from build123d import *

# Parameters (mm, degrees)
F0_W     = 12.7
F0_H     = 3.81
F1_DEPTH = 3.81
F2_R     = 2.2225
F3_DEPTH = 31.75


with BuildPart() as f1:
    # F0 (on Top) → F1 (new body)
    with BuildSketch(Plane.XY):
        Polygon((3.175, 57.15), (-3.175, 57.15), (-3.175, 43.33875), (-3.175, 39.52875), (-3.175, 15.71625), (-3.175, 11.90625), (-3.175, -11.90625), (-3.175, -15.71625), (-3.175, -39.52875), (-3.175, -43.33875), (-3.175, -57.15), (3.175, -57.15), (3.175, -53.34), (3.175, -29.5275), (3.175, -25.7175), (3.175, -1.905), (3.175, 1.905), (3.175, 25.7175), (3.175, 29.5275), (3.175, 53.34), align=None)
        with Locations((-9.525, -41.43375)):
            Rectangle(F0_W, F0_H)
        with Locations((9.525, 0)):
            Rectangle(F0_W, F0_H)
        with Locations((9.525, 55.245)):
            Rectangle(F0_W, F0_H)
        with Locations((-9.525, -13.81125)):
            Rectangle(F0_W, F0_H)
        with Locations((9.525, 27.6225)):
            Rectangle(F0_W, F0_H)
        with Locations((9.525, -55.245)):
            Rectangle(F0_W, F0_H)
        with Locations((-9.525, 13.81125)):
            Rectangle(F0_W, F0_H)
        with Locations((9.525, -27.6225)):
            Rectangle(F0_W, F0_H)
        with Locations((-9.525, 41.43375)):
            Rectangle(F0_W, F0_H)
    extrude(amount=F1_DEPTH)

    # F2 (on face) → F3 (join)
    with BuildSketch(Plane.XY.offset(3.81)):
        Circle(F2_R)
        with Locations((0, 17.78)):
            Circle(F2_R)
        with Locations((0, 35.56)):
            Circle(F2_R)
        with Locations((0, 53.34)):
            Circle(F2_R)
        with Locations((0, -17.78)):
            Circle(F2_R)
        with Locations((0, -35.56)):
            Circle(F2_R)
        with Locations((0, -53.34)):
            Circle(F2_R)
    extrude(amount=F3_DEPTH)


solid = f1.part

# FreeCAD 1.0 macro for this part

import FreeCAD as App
import Part
import Sketcher

V = App.Vector
Q = App.Units.Quantity

doc = App.newDocument("Part")
body = doc.addObject("PartDesign::Body", "Body")

sketch1 = body.newObject("Sketcher::SketchObject", "Sketch")
sketch1.AttachmentSupport = (doc.getObject("XY_Plane"), [""])
sketch1.MapMode = "FlatFace"
sketch1.addGeometry(Part.LineSegment(V(-3.175, 57.15, 0), V(-3.175, 43.33875, 0)), False)
sketch1.addGeometry(Part.LineSegment(V(-3.175, 43.33875, 0), V(-15.875, 43.33875, 0)), False)
sketch1.addGeometry(Part.LineSegment(V(-15.875, 43.33875, 0), V(-15.875, 39.52875, 0)), False)
sketch1.addGeometry(Part.LineSegment(V(-15.875, 39.52875, 0), V(-3.175, 39.52875, 0)), False)
sketch1.addGeometry(Part.LineSegment(V(-3.175, 39.52875, 0), V(-3.175, 15.71625, 0)), False)
sketch1.addGeometry(Part.LineSegment(V(-3.175, 15.71625, 0), V(-15.875, 15.71625, 0)), False)
sketch1.addGeometry(Part.LineSegment(V(-15.875, 15.71625, 0), V(-15.875, 11.90625, 0)), False)
sketch1.addGeometry(Part.LineSegment(V(-15.875, 11.90625, 0), V(-3.175, 11.90625, 0)), False)
sketch1.addGeometry(Part.LineSegment(V(-3.175, 11.90625, 0), V(-3.175, -11.90625, 0)), False)
sketch1.addGeometry(Part.LineSegment(V(-3.175, -11.90625, 0), V(-15.875, -11.90625, 0)), False)
sketch1.addGeometry(Part.LineSegment(V(-15.875, -11.90625, 0), V(-15.875, -15.71625, 0)), False)
sketch1.addGeometry(Part.LineSegment(V(-15.875, -15.71625, 0), V(-3.175, -15.71625, 0)), False)
sketch1.addGeometry(Part.LineSegment(V(-3.175, -15.71625, 0), V(-3.175, -39.52875, 0)), False)
sketch1.addGeometry(Part.LineSegment(V(-3.175, -39.52875, 0), V(-15.875, -39.52875, 0)), False)
sketch1.addGeometry(Part.LineSegment(V(-15.875, -39.52875, 0), V(-15.875, -43.33875, 0)), False)
sketch1.addGeometry(Part.LineSegment(V(-15.875, -43.33875, 0), V(-3.175, -43.33875, 0)), False)
sketch1.addGeometry(Part.LineSegment(V(-3.175, -43.33875, 0), V(-3.175, -57.15, 0)), False)
sketch1.addGeometry(Part.LineSegment(V(-3.175, -57.15, 0), V(15.875, -57.15, 0)), False)
sketch1.addGeometry(Part.LineSegment(V(15.875, -57.15, 0), V(15.875, -53.34, 0)), False)
sketch1.addGeometry(Part.LineSegment(V(15.875, -53.34, 0), V(3.175, -53.34, 0)), False)
sketch1.addGeometry(Part.LineSegment(V(3.175, -53.34, 0), V(3.175, -29.5275, 0)), False)
sketch1.addGeometry(Part.LineSegment(V(3.175, -29.5275, 0), V(15.875, -29.5275, 0)), False)
sketch1.addGeometry(Part.LineSegment(V(15.875, -29.5275, 0), V(15.875, -25.7175, 0)), False)
sketch1.addGeometry(Part.LineSegment(V(15.875, -25.7175, 0), V(3.175, -25.7175, 0)), False)
sketch1.addGeometry(Part.LineSegment(V(3.175, -25.7175, 0), V(3.175, -1.905, 0)), False)
sketch1.addGeometry(Part.LineSegment(V(3.175, -1.905, 0), V(15.875, -1.905, 0)), False)
sketch1.addGeometry(Part.LineSegment(V(15.875, -1.905, 0), V(15.875, 1.905, 0)), False)
sketch1.addGeometry(Part.LineSegment(V(15.875, 1.905, 0), V(3.175, 1.905, 0)), False)
sketch1.addGeometry(Part.LineSegment(V(3.175, 1.905, 0), V(3.175, 25.7175, 0)), False)
sketch1.addGeometry(Part.LineSegment(V(3.175, 25.7175, 0), V(15.875, 25.7175, 0)), False)
sketch1.addGeometry(Part.LineSegment(V(15.875, 25.7175, 0), V(15.875, 29.5275, 0)), False)
sketch1.addGeometry(Part.LineSegment(V(15.875, 29.5275, 0), V(3.175, 29.5275, 0)), False)
sketch1.addGeometry(Part.LineSegment(V(3.175, 29.5275, 0), V(3.175, 53.34, 0)), False)
sketch1.addGeometry(Part.LineSegment(V(3.175, 53.34, 0), V(15.875, 53.34, 0)), False)
sketch1.addGeometry(Part.LineSegment(V(15.875, 53.34, 0), V(15.875, 57.15, 0)), False)
sketch1.addGeometry(Part.LineSegment(V(15.875, 57.15, 0), V(-3.175, 57.15, 0)), False)
sketch1.addConstraint(Sketcher.Constraint("Coincident", 0, 2, 1, 1))
sketch1.addConstraint(Sketcher.Constraint("Coincident", 1, 2, 2, 1))
sketch1.addConstraint(Sketcher.Constraint("Coincident", 2, 2, 3, 1))
sketch1.addConstraint(Sketcher.Constraint("Coincident", 3, 2, 4, 1))
sketch1.addConstraint(Sketcher.Constraint("Coincident", 4, 2, 5, 1))
sketch1.addConstraint(Sketcher.Constraint("Coincident", 5, 2, 6, 1))
sketch1.addConstraint(Sketcher.Constraint("Coincident", 6, 2, 7, 1))
sketch1.addConstraint(Sketcher.Constraint("Coincident", 7, 2, 8, 1))
sketch1.addConstraint(Sketcher.Constraint("Coincident", 8, 2, 9, 1))
sketch1.addConstraint(Sketcher.Constraint("Coincident", 9, 2, 10, 1))
sketch1.addConstraint(Sketcher.Constraint("Coincident", 10, 2, 11, 1))
sketch1.addConstraint(Sketcher.Constraint("Coincident", 11, 2, 12, 1))
sketch1.addConstraint(Sketcher.Constraint("Coincident", 12, 2, 13, 1))
sketch1.addConstraint(Sketcher.Constraint("Coincident", 13, 2, 14, 1))
sketch1.addConstraint(Sketcher.Constraint("Coincident", 14, 2, 15, 1))
sketch1.addConstraint(Sketcher.Constraint("Coincident", 15, 2, 16, 1))
sketch1.addConstraint(Sketcher.Constraint("Coincident", 16, 2, 17, 1))
sketch1.addConstraint(Sketcher.Constraint("Coincident", 17, 2, 18, 1))
sketch1.addConstraint(Sketcher.Constraint("Coincident", 18, 2, 19, 1))
sketch1.addConstraint(Sketcher.Constraint("Coincident", 19, 2, 20, 1))
sketch1.addConstraint(Sketcher.Constraint("Coincident", 20, 2, 21, 1))
sketch1.addConstraint(Sketcher.Constraint("Coincident", 21, 2, 22, 1))
sketch1.addConstraint(Sketcher.Constraint("Coincident", 22, 2, 23, 1))
sketch1.addConstraint(Sketcher.Constraint("Coincident", 23, 2, 24, 1))
sketch1.addConstraint(Sketcher.Constraint("Coincident", 24, 2, 25, 1))
sketch1.addConstraint(Sketcher.Constraint("Coincident", 25, 2, 26, 1))
sketch1.addConstraint(Sketcher.Constraint("Coincident", 26, 2, 27, 1))
sketch1.addConstraint(Sketcher.Constraint("Coincident", 27, 2, 28, 1))
sketch1.addConstraint(Sketcher.Constraint("Coincident", 28, 2, 29, 1))
sketch1.addConstraint(Sketcher.Constraint("Coincident", 29, 2, 30, 1))
sketch1.addConstraint(Sketcher.Constraint("Coincident", 30, 2, 31, 1))
sketch1.addConstraint(Sketcher.Constraint("Coincident", 31, 2, 32, 1))
sketch1.addConstraint(Sketcher.Constraint("Coincident", 32, 2, 33, 1))
sketch1.addConstraint(Sketcher.Constraint("Coincident", 33, 2, 34, 1))
sketch1.addConstraint(Sketcher.Constraint("Coincident", 34, 2, 35, 1))
sketch1.addConstraint(Sketcher.Constraint("Coincident", 35, 2, 0, 1))
sketch1.addConstraint(Sketcher.Constraint("Vertical", 0))
sketch1.addConstraint(Sketcher.Constraint("Horizontal", 1))
sketch1.addConstraint(Sketcher.Constraint("Vertical", 2))
sketch1.addConstraint(Sketcher.Constraint("Horizontal", 3))
sketch1.addConstraint(Sketcher.Constraint("Vertical", 4))
sketch1.addConstraint(Sketcher.Constraint("Horizontal", 5))
sketch1.addConstraint(Sketcher.Constraint("Vertical", 6))
sketch1.addConstraint(Sketcher.Constraint("Horizontal", 7))
sketch1.addConstraint(Sketcher.Constraint("Vertical", 8))
sketch1.addConstraint(Sketcher.Constraint("Horizontal", 9))
sketch1.addConstraint(Sketcher.Constraint("Vertical", 10))
sketch1.addConstraint(Sketcher.Constraint("Horizontal", 11))
sketch1.addConstraint(Sketcher.Constraint("Vertical", 12))
sketch1.addConstraint(Sketcher.Constraint("Horizontal", 13))
sketch1.addConstraint(Sketcher.Constraint("Vertical", 14))
sketch1.addConstraint(Sketcher.Constraint("Horizontal", 15))
sketch1.addConstraint(Sketcher.Constraint("Vertical", 16))
sketch1.addConstraint(Sketcher.Constraint("Horizontal", 17))
sketch1.addConstraint(Sketcher.Constraint("Vertical", 18))
sketch1.addConstraint(Sketcher.Constraint("Horizontal", 19))
sketch1.addConstraint(Sketcher.Constraint("Vertical", 20))
sketch1.addConstraint(Sketcher.Constraint("Horizontal", 21))
sketch1.addConstraint(Sketcher.Constraint("Vertical", 22))
sketch1.addConstraint(Sketcher.Constraint("Horizontal", 23))
sketch1.addConstraint(Sketcher.Constraint("Vertical", 24))
sketch1.addConstraint(Sketcher.Constraint("Horizontal", 25))
sketch1.addConstraint(Sketcher.Constraint("Vertical", 26))
sketch1.addConstraint(Sketcher.Constraint("Horizontal", 27))
sketch1.addConstraint(Sketcher.Constraint("Vertical", 28))
sketch1.addConstraint(Sketcher.Constraint("Horizontal", 29))
sketch1.addConstraint(Sketcher.Constraint("Vertical", 30))
sketch1.addConstraint(Sketcher.Constraint("Horizontal", 31))
sketch1.addConstraint(Sketcher.Constraint("Vertical", 32))
sketch1.addConstraint(Sketcher.Constraint("Horizontal", 33))
sketch1.addConstraint(Sketcher.Constraint("Vertical", 34))
sketch1.addConstraint(Sketcher.Constraint("Horizontal", 35))
sketch1.addConstraint(Sketcher.Constraint("Symmetric", 6, 2, 9, 2, -1))
sketch1.addConstraint(Sketcher.Constraint("Symmetric", 4, 2, 11, 2, -1))
sketch1.addConstraint(Sketcher.Constraint("Symmetric", 2, 2, 13, 2, -1))
sketch1.addConstraint(Sketcher.Constraint("Symmetric", 0, 2, 15, 2, -1))
sketch1.addConstraint(Sketcher.Constraint("Symmetric", 24, 2, 27, 2, -1))
sketch1.addConstraint(Sketcher.Constraint("Symmetric", 22, 2, 29, 2, -1))
sketch1.addConstraint(Sketcher.Constraint("Symmetric", 20, 2, 31, 2, -1))
sketch1.addConstraint(Sketcher.Constraint("Symmetric", 18, 2, 33, 2, -1))
sketch1.addConstraint(Sketcher.Constraint("Vertical", 0, 2, 3, 2))
sketch1.addConstraint(Sketcher.Constraint("Vertical", 2, 2, 5, 2))
sketch1.addConstraint(Sketcher.Constraint("Vertical", 4, 2, 7, 2))
sketch1.addConstraint(Sketcher.Constraint("Vertical", 18, 2, 21, 2))
sketch1.addConstraint(Sketcher.Constraint("Vertical", 20, 2, 23, 2))
sketch1.addConstraint(Sketcher.Constraint("Vertical", 22, 2, 25, 2))
sketch1.addConstraint(Sketcher.Constraint("Equal", 15, 19))
sketch1.addConstraint(Sketcher.Constraint("Equal", 2, 6))
sketch1.addConstraint(Sketcher.Constraint("Equal", 4, 8))
sketch1.addConstraint(Sketcher.Constraint("Equal", 0, 16))
sketch1.addConstraint(Sketcher.Constraint("Equal", 14, 18))
sketch1.addConstraint(Sketcher.Constraint("Equal", 12, 20))
sketch1.addConstraint(Sketcher.Constraint("Equal", 18, 22))
sketch1.addConstraint(Sketcher.Constraint("Equal", 20, 24))
sketch1.addConstraint(Sketcher.Constraint("Equal", 22, 26))
sketch1.addConstraint(Sketcher.Constraint("DistanceX", 1, 2, 1, 1, Q("0.5 in")))
sketch1.addConstraint(Sketcher.Constraint("DistanceX", 17, 1, 17, 2, Q("0.75 in")))
sketch1.addConstraint(Sketcher.Constraint("DistanceY", 2, 2, 2, 1, Q("0.15 in")))
sketch1.addConstraint(Sketcher.Constraint("DistanceY", 18, 2, -1, 1, Q("2.1 in")))
sketch1.addConstraint(Sketcher.Constraint("DistanceX", 0, 2, -1, 1, Q("0.125 in")))
pad1 = body.newObject("PartDesign::Pad", "Pad")
pad1.Profile = sketch1
pad1.Length = Q("0.15 in")

sketch2 = body.newObject("Sketcher::SketchObject", "Sketch001")
sketch2.AttachmentSupport = (doc.getObject("XY_Plane"), [""])
sketch2.MapMode = "FlatFace"
sketch2.AttachmentOffset = App.Placement(V(0, 0, 0.15 * 25.4), App.Rotation())
sketch2.addGeometry(Part.Circle(V(0, 0, 0), V(0, 0, 1), 2.2225), False)
sketch2.addGeometry(Part.Circle(V(0, 17.78, 0), V(0, 0, 1), 2.2225), False)
sketch2.addGeometry(Part.Circle(V(0, 35.56, 0), V(0, 0, 1), 2.2225), False)
sketch2.addGeometry(Part.Circle(V(0, 53.34, 0), V(0, 0, 1), 2.2225), False)
sketch2.addGeometry(Part.Circle(V(0, -17.78, 0), V(0, 0, 1), 2.2225), False)
sketch2.addGeometry(Part.Circle(V(0, -35.56, 0), V(0, 0, 1), 2.2225), False)
sketch2.addGeometry(Part.Circle(V(0, -53.34, 0), V(0, 0, 1), 2.2225), False)
sketch2.addConstraint(Sketcher.Constraint("Coincident", 0, 3, -1, 1))
sketch2.addConstraint(Sketcher.Constraint("Equal", 0, 1))
sketch2.addConstraint(Sketcher.Constraint("Equal", 1, 2))
sketch2.addConstraint(Sketcher.Constraint("Equal", 2, 3))
sketch2.addConstraint(Sketcher.Constraint("Equal", 3, 4))
sketch2.addConstraint(Sketcher.Constraint("Equal", 4, 5))
sketch2.addConstraint(Sketcher.Constraint("Equal", 5, 6))
sketch2.addConstraint(Sketcher.Constraint("Symmetric", 1, 3, 4, 3, -1, 1))
sketch2.addConstraint(Sketcher.Constraint("Symmetric", 2, 3, 5, 3, -1, 1))
sketch2.addConstraint(Sketcher.Constraint("Symmetric", 3, 3, 6, 3, -1, 1))
sketch2.addConstraint(Sketcher.Constraint("PointOnObject", 1, 3, -2))
sketch2.addConstraint(Sketcher.Constraint("PointOnObject", 2, 3, -2))
sketch2.addConstraint(Sketcher.Constraint("PointOnObject", 3, 3, -2))
sketch2.addConstraint(Sketcher.Constraint("Diameter", 0, Q("0.175 in")))
sketch2.addConstraint(Sketcher.Constraint("DistanceY", -1, 1, 1, 3, Q("0.7 in")))
sketch2.addConstraint(Sketcher.Constraint("DistanceY", -1, 1, 2, 3, Q("1.4 in")))
sketch2.addConstraint(Sketcher.Constraint("DistanceY", -1, 1, 3, 3, Q("2.1 in")))
pad2 = body.newObject("PartDesign::Pad", "Pad001")
pad2.Profile = sketch2
pad2.Length = Q("1.25 in")

doc.recompute()
